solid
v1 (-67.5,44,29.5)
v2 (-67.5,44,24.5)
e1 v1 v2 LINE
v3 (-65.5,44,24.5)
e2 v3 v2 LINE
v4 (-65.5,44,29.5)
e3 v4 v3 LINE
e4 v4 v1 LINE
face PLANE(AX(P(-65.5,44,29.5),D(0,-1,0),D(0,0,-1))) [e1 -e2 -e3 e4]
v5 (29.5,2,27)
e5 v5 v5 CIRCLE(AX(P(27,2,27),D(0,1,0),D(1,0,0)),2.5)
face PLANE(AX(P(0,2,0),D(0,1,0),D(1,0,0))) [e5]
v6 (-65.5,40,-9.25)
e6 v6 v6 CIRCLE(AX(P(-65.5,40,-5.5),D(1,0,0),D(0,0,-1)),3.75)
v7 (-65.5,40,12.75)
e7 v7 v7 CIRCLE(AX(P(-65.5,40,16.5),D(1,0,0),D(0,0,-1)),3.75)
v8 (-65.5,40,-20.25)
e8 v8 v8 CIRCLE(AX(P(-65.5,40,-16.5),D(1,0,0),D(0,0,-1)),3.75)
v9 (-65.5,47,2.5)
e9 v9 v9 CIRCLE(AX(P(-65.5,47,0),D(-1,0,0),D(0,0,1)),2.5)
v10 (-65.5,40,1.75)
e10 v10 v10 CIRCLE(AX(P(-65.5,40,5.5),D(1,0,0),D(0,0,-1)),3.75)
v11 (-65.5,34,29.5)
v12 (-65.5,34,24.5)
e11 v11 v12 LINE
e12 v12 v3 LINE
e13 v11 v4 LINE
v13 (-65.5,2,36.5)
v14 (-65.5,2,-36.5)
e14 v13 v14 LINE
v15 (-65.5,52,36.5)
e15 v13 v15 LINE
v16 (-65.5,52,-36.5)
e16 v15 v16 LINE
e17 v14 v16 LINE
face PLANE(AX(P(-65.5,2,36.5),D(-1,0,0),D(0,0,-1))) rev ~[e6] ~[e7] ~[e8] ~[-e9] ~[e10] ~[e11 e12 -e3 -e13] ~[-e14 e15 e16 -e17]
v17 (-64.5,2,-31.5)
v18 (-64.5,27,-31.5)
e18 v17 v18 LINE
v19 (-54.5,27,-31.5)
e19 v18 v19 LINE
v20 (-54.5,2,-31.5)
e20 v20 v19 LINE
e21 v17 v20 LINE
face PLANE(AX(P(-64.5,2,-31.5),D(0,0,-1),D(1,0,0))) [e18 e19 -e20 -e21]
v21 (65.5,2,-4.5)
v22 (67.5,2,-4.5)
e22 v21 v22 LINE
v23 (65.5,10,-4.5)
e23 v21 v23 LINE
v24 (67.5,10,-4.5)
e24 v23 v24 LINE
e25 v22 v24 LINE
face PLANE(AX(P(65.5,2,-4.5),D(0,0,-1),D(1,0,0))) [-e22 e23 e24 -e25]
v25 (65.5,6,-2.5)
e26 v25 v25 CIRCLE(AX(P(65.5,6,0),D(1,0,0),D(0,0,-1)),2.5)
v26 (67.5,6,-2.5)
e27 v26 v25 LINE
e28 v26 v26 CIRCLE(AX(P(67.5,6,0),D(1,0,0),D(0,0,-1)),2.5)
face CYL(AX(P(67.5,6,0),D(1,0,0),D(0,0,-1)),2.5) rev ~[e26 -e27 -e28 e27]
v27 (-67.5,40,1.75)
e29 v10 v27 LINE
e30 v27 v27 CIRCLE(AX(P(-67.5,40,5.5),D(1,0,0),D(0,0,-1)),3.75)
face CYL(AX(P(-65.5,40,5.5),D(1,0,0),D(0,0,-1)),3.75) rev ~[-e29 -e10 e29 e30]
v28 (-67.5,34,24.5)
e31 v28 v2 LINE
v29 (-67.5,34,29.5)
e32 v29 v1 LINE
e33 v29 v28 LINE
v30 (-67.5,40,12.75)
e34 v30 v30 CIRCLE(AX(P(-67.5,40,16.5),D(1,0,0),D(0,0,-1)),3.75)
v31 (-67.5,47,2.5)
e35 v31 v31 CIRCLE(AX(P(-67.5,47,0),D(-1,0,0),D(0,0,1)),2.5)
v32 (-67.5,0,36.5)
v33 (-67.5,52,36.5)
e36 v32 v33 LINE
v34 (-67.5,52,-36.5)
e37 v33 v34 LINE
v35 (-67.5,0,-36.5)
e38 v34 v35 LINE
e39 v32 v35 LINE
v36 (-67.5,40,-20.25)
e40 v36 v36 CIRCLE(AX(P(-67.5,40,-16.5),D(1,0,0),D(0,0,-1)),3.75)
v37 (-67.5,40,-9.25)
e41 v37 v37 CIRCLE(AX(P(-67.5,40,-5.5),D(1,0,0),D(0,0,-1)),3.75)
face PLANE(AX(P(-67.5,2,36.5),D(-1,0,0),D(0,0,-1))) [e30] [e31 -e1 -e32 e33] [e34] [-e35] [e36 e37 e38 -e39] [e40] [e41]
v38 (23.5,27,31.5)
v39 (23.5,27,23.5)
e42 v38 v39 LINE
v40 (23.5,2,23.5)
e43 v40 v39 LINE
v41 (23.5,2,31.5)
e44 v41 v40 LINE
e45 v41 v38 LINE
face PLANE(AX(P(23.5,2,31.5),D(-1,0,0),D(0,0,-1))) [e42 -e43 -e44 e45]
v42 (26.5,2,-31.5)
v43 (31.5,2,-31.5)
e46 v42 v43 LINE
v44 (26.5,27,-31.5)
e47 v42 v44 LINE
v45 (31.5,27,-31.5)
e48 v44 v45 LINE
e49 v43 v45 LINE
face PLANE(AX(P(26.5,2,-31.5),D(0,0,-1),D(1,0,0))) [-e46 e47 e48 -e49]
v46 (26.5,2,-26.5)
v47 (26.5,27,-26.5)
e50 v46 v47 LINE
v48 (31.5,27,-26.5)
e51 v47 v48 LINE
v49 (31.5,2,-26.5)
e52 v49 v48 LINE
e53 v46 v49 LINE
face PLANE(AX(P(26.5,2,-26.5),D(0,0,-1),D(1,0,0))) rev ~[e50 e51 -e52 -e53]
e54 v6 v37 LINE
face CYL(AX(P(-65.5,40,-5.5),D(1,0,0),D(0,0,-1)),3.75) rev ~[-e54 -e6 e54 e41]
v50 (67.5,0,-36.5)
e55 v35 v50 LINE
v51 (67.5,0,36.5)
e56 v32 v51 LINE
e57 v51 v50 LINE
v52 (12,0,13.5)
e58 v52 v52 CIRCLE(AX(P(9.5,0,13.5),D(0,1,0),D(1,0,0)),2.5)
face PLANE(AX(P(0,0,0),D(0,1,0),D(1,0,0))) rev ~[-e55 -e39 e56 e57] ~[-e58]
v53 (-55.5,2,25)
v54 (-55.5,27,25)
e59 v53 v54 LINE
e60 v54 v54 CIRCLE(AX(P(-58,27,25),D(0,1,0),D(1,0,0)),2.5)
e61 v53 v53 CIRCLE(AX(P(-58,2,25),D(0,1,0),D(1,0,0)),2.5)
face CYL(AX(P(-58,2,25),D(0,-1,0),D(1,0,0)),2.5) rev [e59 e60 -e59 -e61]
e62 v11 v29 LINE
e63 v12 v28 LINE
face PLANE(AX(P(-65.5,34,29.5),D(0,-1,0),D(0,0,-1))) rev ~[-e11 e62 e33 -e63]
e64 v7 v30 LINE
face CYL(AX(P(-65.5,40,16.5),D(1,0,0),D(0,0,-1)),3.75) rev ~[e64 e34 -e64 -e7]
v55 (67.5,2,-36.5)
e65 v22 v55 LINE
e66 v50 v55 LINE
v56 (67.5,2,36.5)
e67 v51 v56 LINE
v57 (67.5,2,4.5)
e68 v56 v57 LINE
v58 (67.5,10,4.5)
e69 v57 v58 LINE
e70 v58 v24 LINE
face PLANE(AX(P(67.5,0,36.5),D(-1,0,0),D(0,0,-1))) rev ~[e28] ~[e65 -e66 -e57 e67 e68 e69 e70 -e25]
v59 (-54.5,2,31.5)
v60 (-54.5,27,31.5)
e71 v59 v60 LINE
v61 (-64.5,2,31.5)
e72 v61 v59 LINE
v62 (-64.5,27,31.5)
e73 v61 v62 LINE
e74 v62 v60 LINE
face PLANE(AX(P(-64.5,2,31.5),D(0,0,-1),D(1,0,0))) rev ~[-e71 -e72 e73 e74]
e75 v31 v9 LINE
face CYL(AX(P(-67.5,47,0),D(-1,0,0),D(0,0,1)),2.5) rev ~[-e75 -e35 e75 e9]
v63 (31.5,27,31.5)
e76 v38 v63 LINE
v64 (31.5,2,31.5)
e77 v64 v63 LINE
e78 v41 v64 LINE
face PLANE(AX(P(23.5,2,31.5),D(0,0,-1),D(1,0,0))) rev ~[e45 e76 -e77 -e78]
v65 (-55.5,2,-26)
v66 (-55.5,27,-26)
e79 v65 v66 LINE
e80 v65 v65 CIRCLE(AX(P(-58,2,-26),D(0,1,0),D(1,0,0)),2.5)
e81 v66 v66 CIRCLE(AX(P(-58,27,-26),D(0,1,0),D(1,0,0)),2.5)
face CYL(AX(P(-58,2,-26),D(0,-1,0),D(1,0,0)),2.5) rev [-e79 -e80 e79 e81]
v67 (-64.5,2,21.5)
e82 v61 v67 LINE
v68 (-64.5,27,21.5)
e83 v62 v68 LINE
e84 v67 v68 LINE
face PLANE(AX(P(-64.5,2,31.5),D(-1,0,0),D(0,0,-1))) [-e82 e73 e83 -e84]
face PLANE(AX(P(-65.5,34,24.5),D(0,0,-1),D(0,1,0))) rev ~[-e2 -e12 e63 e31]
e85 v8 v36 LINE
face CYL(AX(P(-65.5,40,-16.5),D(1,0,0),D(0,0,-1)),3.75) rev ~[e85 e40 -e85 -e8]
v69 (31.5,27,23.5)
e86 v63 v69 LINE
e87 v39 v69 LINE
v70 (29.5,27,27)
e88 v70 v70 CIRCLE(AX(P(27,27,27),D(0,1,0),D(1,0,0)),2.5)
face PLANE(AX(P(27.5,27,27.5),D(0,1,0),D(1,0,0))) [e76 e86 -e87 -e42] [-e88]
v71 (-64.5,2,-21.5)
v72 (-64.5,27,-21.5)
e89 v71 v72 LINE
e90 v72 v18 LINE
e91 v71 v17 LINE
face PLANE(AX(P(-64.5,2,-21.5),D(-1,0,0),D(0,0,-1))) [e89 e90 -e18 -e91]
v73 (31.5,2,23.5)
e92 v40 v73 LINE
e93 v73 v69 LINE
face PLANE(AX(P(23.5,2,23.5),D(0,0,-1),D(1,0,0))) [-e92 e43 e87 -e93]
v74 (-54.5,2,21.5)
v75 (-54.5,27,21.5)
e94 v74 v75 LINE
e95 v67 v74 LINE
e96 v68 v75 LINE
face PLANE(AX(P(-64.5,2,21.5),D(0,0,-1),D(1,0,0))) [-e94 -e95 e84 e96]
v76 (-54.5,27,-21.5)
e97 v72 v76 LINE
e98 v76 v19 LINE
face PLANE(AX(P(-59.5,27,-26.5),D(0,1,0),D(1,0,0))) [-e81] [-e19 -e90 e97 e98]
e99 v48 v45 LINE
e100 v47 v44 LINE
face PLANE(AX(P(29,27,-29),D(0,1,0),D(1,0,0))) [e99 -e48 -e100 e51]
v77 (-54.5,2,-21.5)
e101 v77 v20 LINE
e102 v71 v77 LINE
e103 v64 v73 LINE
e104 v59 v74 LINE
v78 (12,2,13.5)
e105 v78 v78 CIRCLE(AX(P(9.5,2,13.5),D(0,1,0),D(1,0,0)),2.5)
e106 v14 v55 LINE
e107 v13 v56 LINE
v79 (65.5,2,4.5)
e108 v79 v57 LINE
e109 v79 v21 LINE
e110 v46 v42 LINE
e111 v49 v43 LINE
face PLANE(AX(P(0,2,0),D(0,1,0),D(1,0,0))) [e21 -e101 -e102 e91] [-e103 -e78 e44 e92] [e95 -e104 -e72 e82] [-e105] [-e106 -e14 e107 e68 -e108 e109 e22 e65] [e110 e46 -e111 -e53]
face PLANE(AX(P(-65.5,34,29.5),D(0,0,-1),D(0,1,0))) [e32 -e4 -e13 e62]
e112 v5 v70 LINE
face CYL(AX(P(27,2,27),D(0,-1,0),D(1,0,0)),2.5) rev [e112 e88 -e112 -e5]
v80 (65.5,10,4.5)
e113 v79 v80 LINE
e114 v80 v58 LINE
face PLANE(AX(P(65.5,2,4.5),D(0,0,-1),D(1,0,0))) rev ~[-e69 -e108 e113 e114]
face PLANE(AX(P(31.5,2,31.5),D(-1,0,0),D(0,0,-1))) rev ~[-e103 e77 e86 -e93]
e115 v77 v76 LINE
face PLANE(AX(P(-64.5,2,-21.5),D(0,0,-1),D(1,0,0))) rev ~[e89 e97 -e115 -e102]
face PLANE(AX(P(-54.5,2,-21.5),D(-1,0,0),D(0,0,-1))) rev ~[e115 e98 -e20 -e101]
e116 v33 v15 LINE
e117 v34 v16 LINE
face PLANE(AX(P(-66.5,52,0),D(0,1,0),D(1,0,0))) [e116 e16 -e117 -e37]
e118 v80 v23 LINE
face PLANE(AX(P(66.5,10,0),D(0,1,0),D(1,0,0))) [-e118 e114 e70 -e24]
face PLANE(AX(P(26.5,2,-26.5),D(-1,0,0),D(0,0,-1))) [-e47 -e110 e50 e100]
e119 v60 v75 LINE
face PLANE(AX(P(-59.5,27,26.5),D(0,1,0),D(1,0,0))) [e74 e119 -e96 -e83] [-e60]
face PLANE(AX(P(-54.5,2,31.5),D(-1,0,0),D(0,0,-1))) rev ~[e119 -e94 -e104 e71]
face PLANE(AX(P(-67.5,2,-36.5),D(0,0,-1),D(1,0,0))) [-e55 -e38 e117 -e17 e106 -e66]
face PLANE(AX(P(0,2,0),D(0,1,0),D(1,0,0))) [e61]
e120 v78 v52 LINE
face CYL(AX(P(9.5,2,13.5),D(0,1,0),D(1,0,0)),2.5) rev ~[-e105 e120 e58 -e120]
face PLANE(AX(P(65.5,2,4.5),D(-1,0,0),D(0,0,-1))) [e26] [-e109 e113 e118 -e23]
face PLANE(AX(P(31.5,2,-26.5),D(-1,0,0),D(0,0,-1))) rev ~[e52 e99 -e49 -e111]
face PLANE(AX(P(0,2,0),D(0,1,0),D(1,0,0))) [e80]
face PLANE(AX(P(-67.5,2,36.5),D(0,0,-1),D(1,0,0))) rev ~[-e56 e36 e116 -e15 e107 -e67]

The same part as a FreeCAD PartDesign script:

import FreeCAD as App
import Part
import Sketcher

V = App.Vector


def add_polygon(sketch, points):
    """Adds a closed chain of lines whose ends are joined by coincident constraints."""
    first, n = sketch.GeometryCount, len(points)
    for a, b in zip(points, points[1:] + points[:1]):
        sketch.addGeometry(Part.LineSegment(App.Vector(*a, 0), App.Vector(*b, 0)), False)
    for i in range(n):
        sketch.addConstraint(Sketcher.Constraint("Coincident", first + i, 2, first + (i + 1) % n, 1))

doc = App.newDocument("Part")
body = doc.addObject("PartDesign::Body", "Body")

# Sketch on XZ plane
sketch1 = body.newObject("Sketcher::SketchObject", "Sketch")
sketch1.AttachmentSupport = (doc.getObject("XZ_Plane"), [""])
sketch1.MapMode = "FlatFace"
add_polygon(sketch1, [(-68, -36), (-68, 36), (68, 36), (68, -36)])  # lines 0-3
sketch1.addConstraint(Sketcher.Constraint("Vertical", 0))
sketch1.addConstraint(Sketcher.Constraint("Horizontal", 1))
sketch1.addConstraint(Sketcher.Constraint("Vertical", 2))
sketch1.addConstraint(Sketcher.Constraint("Horizontal", 3))
sketch1.addConstraint(Sketcher.Constraint("Symmetric", 0, 2, 2, 2, -1, 1))
sketch1.addConstraint(Sketcher.Constraint("DistanceX", 1, 1, 1, 2, 135.0))
sketch1.addConstraint(Sketcher.Constraint("DistanceY", 0, 1, 0, 2, 73.0))
pad1 = body.newObject("PartDesign::Pad", "Pad")
pad1.Profile = sketch1
pad1.Length = 2
pad1.Reversed = True

# Sketch on XZ plane
sketch2 = body.newObject("Sketcher::SketchObject", "Sketch001")
sketch2.AttachmentSupport = (doc.getObject("XZ_Plane"), [""])
sketch2.MapMode = "FlatFace"
sketch2.AttachmentOffset = App.Placement(V(0, 0, -2), App.Rotation())
add_polygon(sketch2, [(-67.5, -36.5), (-67.5, 36.5), (-65.5, 36.5), (-65.5, -36.5)])  # lines 0-3
sketch2.addConstraint(Sketcher.Constraint("Vertical", 0))
sketch2.addConstraint(Sketcher.Constraint("Horizontal", 1))
sketch2.addConstraint(Sketcher.Constraint("Vertical", 2))
sketch2.addConstraint(Sketcher.Constraint("Horizontal", 3))
sketch2.addConstraint(Sketcher.Constraint("DistanceX", 1, 1, 1, 2, 2.0))
sketch2.addConstraint(Sketcher.Constraint("DistanceY", 0, 1, 0, 2, 73.0))
sketch2.addConstraint(Sketcher.Constraint("DistanceX", 0, 2, -1, 1, 67.5))
sketch2.addConstraint(Sketcher.Constraint("DistanceY", -1, 1, 0, 2, 36.5))
pad2 = body.newObject("PartDesign::Pad", "Pad001")
pad2.Profile = sketch2
pad2.Length = 50
pad2.Reversed = True

# Sketch on XZ plane
sketch3 = body.newObject("Sketcher::SketchObject", "Sketch002")
sketch3.AttachmentSupport = (doc.getObject("XZ_Plane"), [""])
sketch3.MapMode = "FlatFace"
sketch3.AttachmentOffset = App.Placement(V(0, 0, -2), App.Rotation())
add_polygon(sketch3, [(23.5, 23.5), (23.5, 31.5), (31.5, 31.5), (31.5, 23.5)])  # lines 0-3
sketch3.addGeometry(Part.Circle(V(27, 27, 0), V(0, 0, 1), 2.5), False)  # 4
add_polygon(sketch3, [(-64.5, 21.5), (-64.5, 31.5), (-54.5, 31.5), (-54.5, 21.5)])  # lines 5-8
sketch3.addGeometry(Part.Circle(V(-58, 25, 0), V(0, 0, 1), 2.5), False)  # 9
add_polygon(sketch3, [(-64.5, -31.5), (-64.5, -21.5), (-54.5, -21.5), (-54.5, -31.5)])  # lines 10-13
sketch3.addGeometry(Part.Circle(V(-58, -26, 0), V(0, 0, 1), 2.5), False)  # 14
add_polygon(sketch3, [(26.5, -31.5), (26.5, -26.5), (31.5, -26.5), (31.5, -31.5)])  # lines 15-18
sketch3.addConstraint(Sketcher.Constraint("Vertical", 0))
sketch3.addConstraint(Sketcher.Constraint("Horizontal", 1))
sketch3.addConstraint(Sketcher.Constraint("Vertical", 2))
sketch3.addConstraint(Sketcher.Constraint("Horizontal", 3))
sketch3.addConstraint(Sketcher.Constraint("Vertical", 5))
sketch3.addConstraint(Sketcher.Constraint("Horizontal", 6))
sketch3.addConstraint(Sketcher.Constraint("Vertical", 7))
sketch3.addConstraint(Sketcher.Constraint("Horizontal", 8))
sketch3.addConstraint(Sketcher.Constraint("Vertical", 10))
sketch3.addConstraint(Sketcher.Constraint("Horizontal", 11))
sketch3.addConstraint(Sketcher.Constraint("Vertical", 12))
sketch3.addConstraint(Sketcher.Constraint("Horizontal", 13))
sketch3.addConstraint(Sketcher.Constraint("Vertical", 15))
sketch3.addConstraint(Sketcher.Constraint("Horizontal", 16))
sketch3.addConstraint(Sketcher.Constraint("Vertical", 17))
sketch3.addConstraint(Sketcher.Constraint("Horizontal", 18))
sketch3.addConstraint(Sketcher.Constraint("Equal", 4, 9))
sketch3.addConstraint(Sketcher.Constraint("Equal", 9, 14))
sketch3.addConstraint(Sketcher.Constraint("Symmetric", 8, 2, 10, 2, -1))
sketch3.addConstraint(Sketcher.Constraint("Symmetric", 6, 2, 12, 2, -1))
sketch3.addConstraint(Sketcher.Constraint("Symmetric", 1, 2, 17, 2, -1))
sketch3.addConstraint(Sketcher.Constraint("Horizontal", 1, 2, 5, 2))
sketch3.addConstraint(Sketcher.Constraint("Vertical", 9, 3, 14, 3))
sketch3.addConstraint(Sketcher.Constraint("Equal", 3, 0))
sketch3.addConstraint(Sketcher.Constraint("Equal", 13, 5))
sketch3.addConstraint(Sketcher.Constraint("Equal", 18, 15))
sketch3.addConstraint(Sketcher.Constraint("Diameter", 4, 5.0))
sketch3.addConstraint(Sketcher.Constraint("DistanceX", 1, 1, 1, 2, 8.0))
sketch3.addConstraint(Sketcher.Constraint("DistanceX", 6, 1, 6, 2, 10.0))
sketch3.addConstraint(Sketcher.Constraint("DistanceX", 16, 1, 16, 2, 5.0))
sketch3.addConstraint(Sketcher.Constraint("DistanceX", -1, 1, 4, 3, 27.0))
sketch3.addConstraint(Sketcher.Constraint("DistanceY", -1, 1, 4, 3, 27.0))
sketch3.addConstraint(Sketcher.Constraint("DistanceX", 9, 3, -1, 1, 58.0))
sketch3.addConstraint(Sketcher.Constraint("DistanceY", -1, 1, 9, 3, 25.0))
sketch3.addConstraint(Sketcher.Constraint("DistanceY", 14, 3, -1, 1, 26.0))
sketch3.addConstraint(Sketcher.Constraint("DistanceX", 5, 2, 0, 2, 88.0))
sketch3.addConstraint(Sketcher.Constraint("DistanceY", 10, 2, 8, 2, 43.0))
sketch3.addConstraint(Sketcher.Constraint("DistanceX", -1, 1, 0, 2, 23.5))
pad3 = body.newObject("PartDesign::Pad", "Pad002")
pad3.Profile = sketch3
pad3.Length = 25
pad3.Reversed = True

# Sketch on XZ plane
sketch4 = body.newObject("Sketcher::SketchObject", "Sketch003")
sketch4.AttachmentSupport = (doc.getObject("XZ_Plane"), [""])
sketch4.MapMode = "FlatFace"
sketch4.AttachmentOffset = App.Placement(V(0, 0, -2), App.Rotation())
sketch4.addGeometry(Part.Circle(V(9.5, 13.5, 0), V(0, 0, 1), 2.5), False)
sketch4.addConstraint(Sketcher.Constraint("Diameter", 0, 5.0))
sketch4.addConstraint(Sketcher.Constraint("DistanceX", -1, 1, 0, 3, 9.5))
sketch4.addConstraint(Sketcher.Constraint("DistanceY", -1, 1, 0, 3, 13.5))
pocket1 = body.newObject("PartDesign::Pocket", "Pocket")
pocket1.Profile = sketch4
pocket1.Length = 2
pocket1.Reversed = True

# Sketch on YZ plane
sketch5 = body.newObject("Sketcher::SketchObject", "Sketch004")
sketch5.AttachmentSupport = (doc.getObject("YZ_Plane"), [""])
sketch5.MapMode = "FlatFace"
sketch5.AttachmentOffset = App.Placement(V(0, 0, -65.5), App.Rotation())
sketch5.addGeometry(Part.Circle(V(40, 16.5, 0), V(0, 0, 1), 3.8), False)
sketch5.addGeometry(Part.Circle(V(40, 5.5, 0), V(0, 0, 1), 3.8), False)
sketch5.addGeometry(Part.Circle(V(40, -5.5, 0), V(0, 0, 1), 3.8), False)
sketch5.addGeometry(Part.Circle(V(40, -16.5, 0), V(0, 0, 1), 3.8), False)
sketch5.addConstraint(Sketcher.Constraint("Equal", 0, 1))
sketch5.addConstraint(Sketcher.Constraint("Equal", 1, 2))
sketch5.addConstraint(Sketcher.Constraint("Equal", 2, 3))
sketch5.addConstraint(Sketcher.Constraint("Symmetric", 1, 3, 2, 3, -1))
sketch5.addConstraint(Sketcher.Constraint("Symmetric", 0, 3, 3, 3, -1))
sketch5.addConstraint(Sketcher.Constraint("Vertical", 0, 3, 1, 3))
sketch5.addConstraint(Sketcher.Constraint("Diameter", 0, 7.5))
sketch5.addConstraint(Sketcher.Constraint("DistanceX", -1, 1, 0, 3, 40.0))
sketch5.addConstraint(Sketcher.Constraint("DistanceY", 1, 3, 0, 3, 11.0))
sketch5.addConstraint(Sketcher.Constraint("DistanceY", 2, 3, 1, 3, 11.0))
pocket2 = body.newObject("PartDesign::Pocket", "Pocket001")
pocket2.Profile = sketch5
pocket2.Length = 2

# Sketch on YZ plane
sketch6 = body.newObject("Sketcher::SketchObject", "Sketch005")
sketch6.AttachmentSupport = (doc.getObject("YZ_Plane"), [""])
sketch6.MapMode = "FlatFace"
sketch6.AttachmentOffset = App.Placement(V(0, 0, -65.5), App.Rotation())
add_polygon(sketch6, [(44, 30), (34, 30), (34, 24), (44, 24)])  # lines 0-3
sketch6.addConstraint(Sketcher.Constraint("Horizontal", 0))
sketch6.addConstraint(Sketcher.Constraint("Vertical", 1))
sketch6.addConstraint(Sketcher.Constraint("Horizontal", 2))
sketch6.addConstraint(Sketcher.Constraint("Vertical", 3))
sketch6.addConstraint(Sketcher.Constraint("DistanceX", 0, 2, 0, 1, 10.0))
sketch6.addConstraint(Sketcher.Constraint("DistanceY", 1, 2, 1, 1, 5.0))
sketch6.addConstraint(Sketcher.Constraint("DistanceX", -1, 1, 0, 2, 34.0))
sketch6.addConstraint(Sketcher.Constraint("DistanceY", -1, 1, 0, 2, 29.5))
pocket3 = body.newObject("PartDesign::Pocket", "Pocket002")
pocket3.Profile = sketch6
pocket3.Length = 2

# Sketch on XZ plane
sketch7 = body.newObject("Sketcher::SketchObject", "Sketch006")
sketch7.AttachmentSupport = (doc.getObject("XZ_Plane"), [""])
sketch7.MapMode = "FlatFace"
sketch7.AttachmentOffset = App.Placement(V(0, 0, -2), App.Rotation())
add_polygon(sketch7, [(65.5, -4.5), (65.5, 4.5), (67.5, 4.5), (67.5, -4.5)])  # lines 0-3
sketch7.addConstraint(Sketcher.Constraint("Vertical", 0))
sketch7.addConstraint(Sketcher.Constraint("Horizontal", 1))
sketch7.addConstraint(Sketcher.Constraint("Vertical", 2))
sketch7.addConstraint(Sketcher.Constraint("Horizontal", 3))
sketch7.addConstraint(Sketcher.Constraint("DistanceX", 1, 1, 1, 2, 2.0))
sketch7.addConstraint(Sketcher.Constraint("DistanceY", 0, 1, 0, 2, 9.0))
sketch7.addConstraint(Sketcher.Constraint("DistanceX", -1, 1, 0, 2, 65.5))
sketch7.addConstraint(Sketcher.Constraint("DistanceY", -1, 1, 0, 2, 4.5))
pad4 = body.newObject("PartDesign::Pad", "Pad003")
pad4.Profile = sketch7
pad4.Length = 8
pad4.Reversed = True

# Sketch on YZ plane
sketch8 = body.newObject("Sketcher::SketchObject", "Sketch007")
sketch8.AttachmentSupport = (doc.getObject("YZ_Plane"), [""])
sketch8.MapMode = "FlatFace"
sketch8.AttachmentOffset = App.Placement(V(0, 0, 67.5), App.Rotation())
sketch8.addGeometry(Part.Circle(V(6, 0, 0), V(0, 0, 1), 2.5), False)
sketch8.addConstraint(Sketcher.Constraint("PointOnObject", 0, 3, -1))
sketch8.addConstraint(Sketcher.Constraint("Diameter", 0, 5.0))
sketch8.addConstraint(Sketcher.Constraint("DistanceX", -1, 1, 0, 3, 6.0))
pocket4 = body.newObject("PartDesign::Pocket", "Pocket003")
pocket4.Profile = sketch8
pocket4.Length = 8

# Sketch on YZ plane
sketch9 = body.newObject("Sketcher::SketchObject", "Sketch008")
sketch9.AttachmentSupport = (doc.getObject("YZ_Plane"), [""])
sketch9.MapMode = "FlatFace"
sketch9.AttachmentOffset = App.Placement(V(0, 0, -67.5), App.Rotation())
sketch9.addGeometry(Part.Circle(V(47, 0, 0), V(0, 0, 1), 2.5), False)
sketch9.addConstraint(Sketcher.Constraint("PointOnObject", 0, 3, -1))
sketch9.addConstraint(Sketcher.Constraint("Diameter", 0, 5.0))
sketch9.addConstraint(Sketcher.Constraint("DistanceX", -1, 1, 0, 3, 47.0))
pocket5 = body.newObject("PartDesign::Pocket", "Pocket004")
pocket5.Profile = sketch9
pocket5.Length = 2
pocket5.Reversed = True

doc.recompute()
